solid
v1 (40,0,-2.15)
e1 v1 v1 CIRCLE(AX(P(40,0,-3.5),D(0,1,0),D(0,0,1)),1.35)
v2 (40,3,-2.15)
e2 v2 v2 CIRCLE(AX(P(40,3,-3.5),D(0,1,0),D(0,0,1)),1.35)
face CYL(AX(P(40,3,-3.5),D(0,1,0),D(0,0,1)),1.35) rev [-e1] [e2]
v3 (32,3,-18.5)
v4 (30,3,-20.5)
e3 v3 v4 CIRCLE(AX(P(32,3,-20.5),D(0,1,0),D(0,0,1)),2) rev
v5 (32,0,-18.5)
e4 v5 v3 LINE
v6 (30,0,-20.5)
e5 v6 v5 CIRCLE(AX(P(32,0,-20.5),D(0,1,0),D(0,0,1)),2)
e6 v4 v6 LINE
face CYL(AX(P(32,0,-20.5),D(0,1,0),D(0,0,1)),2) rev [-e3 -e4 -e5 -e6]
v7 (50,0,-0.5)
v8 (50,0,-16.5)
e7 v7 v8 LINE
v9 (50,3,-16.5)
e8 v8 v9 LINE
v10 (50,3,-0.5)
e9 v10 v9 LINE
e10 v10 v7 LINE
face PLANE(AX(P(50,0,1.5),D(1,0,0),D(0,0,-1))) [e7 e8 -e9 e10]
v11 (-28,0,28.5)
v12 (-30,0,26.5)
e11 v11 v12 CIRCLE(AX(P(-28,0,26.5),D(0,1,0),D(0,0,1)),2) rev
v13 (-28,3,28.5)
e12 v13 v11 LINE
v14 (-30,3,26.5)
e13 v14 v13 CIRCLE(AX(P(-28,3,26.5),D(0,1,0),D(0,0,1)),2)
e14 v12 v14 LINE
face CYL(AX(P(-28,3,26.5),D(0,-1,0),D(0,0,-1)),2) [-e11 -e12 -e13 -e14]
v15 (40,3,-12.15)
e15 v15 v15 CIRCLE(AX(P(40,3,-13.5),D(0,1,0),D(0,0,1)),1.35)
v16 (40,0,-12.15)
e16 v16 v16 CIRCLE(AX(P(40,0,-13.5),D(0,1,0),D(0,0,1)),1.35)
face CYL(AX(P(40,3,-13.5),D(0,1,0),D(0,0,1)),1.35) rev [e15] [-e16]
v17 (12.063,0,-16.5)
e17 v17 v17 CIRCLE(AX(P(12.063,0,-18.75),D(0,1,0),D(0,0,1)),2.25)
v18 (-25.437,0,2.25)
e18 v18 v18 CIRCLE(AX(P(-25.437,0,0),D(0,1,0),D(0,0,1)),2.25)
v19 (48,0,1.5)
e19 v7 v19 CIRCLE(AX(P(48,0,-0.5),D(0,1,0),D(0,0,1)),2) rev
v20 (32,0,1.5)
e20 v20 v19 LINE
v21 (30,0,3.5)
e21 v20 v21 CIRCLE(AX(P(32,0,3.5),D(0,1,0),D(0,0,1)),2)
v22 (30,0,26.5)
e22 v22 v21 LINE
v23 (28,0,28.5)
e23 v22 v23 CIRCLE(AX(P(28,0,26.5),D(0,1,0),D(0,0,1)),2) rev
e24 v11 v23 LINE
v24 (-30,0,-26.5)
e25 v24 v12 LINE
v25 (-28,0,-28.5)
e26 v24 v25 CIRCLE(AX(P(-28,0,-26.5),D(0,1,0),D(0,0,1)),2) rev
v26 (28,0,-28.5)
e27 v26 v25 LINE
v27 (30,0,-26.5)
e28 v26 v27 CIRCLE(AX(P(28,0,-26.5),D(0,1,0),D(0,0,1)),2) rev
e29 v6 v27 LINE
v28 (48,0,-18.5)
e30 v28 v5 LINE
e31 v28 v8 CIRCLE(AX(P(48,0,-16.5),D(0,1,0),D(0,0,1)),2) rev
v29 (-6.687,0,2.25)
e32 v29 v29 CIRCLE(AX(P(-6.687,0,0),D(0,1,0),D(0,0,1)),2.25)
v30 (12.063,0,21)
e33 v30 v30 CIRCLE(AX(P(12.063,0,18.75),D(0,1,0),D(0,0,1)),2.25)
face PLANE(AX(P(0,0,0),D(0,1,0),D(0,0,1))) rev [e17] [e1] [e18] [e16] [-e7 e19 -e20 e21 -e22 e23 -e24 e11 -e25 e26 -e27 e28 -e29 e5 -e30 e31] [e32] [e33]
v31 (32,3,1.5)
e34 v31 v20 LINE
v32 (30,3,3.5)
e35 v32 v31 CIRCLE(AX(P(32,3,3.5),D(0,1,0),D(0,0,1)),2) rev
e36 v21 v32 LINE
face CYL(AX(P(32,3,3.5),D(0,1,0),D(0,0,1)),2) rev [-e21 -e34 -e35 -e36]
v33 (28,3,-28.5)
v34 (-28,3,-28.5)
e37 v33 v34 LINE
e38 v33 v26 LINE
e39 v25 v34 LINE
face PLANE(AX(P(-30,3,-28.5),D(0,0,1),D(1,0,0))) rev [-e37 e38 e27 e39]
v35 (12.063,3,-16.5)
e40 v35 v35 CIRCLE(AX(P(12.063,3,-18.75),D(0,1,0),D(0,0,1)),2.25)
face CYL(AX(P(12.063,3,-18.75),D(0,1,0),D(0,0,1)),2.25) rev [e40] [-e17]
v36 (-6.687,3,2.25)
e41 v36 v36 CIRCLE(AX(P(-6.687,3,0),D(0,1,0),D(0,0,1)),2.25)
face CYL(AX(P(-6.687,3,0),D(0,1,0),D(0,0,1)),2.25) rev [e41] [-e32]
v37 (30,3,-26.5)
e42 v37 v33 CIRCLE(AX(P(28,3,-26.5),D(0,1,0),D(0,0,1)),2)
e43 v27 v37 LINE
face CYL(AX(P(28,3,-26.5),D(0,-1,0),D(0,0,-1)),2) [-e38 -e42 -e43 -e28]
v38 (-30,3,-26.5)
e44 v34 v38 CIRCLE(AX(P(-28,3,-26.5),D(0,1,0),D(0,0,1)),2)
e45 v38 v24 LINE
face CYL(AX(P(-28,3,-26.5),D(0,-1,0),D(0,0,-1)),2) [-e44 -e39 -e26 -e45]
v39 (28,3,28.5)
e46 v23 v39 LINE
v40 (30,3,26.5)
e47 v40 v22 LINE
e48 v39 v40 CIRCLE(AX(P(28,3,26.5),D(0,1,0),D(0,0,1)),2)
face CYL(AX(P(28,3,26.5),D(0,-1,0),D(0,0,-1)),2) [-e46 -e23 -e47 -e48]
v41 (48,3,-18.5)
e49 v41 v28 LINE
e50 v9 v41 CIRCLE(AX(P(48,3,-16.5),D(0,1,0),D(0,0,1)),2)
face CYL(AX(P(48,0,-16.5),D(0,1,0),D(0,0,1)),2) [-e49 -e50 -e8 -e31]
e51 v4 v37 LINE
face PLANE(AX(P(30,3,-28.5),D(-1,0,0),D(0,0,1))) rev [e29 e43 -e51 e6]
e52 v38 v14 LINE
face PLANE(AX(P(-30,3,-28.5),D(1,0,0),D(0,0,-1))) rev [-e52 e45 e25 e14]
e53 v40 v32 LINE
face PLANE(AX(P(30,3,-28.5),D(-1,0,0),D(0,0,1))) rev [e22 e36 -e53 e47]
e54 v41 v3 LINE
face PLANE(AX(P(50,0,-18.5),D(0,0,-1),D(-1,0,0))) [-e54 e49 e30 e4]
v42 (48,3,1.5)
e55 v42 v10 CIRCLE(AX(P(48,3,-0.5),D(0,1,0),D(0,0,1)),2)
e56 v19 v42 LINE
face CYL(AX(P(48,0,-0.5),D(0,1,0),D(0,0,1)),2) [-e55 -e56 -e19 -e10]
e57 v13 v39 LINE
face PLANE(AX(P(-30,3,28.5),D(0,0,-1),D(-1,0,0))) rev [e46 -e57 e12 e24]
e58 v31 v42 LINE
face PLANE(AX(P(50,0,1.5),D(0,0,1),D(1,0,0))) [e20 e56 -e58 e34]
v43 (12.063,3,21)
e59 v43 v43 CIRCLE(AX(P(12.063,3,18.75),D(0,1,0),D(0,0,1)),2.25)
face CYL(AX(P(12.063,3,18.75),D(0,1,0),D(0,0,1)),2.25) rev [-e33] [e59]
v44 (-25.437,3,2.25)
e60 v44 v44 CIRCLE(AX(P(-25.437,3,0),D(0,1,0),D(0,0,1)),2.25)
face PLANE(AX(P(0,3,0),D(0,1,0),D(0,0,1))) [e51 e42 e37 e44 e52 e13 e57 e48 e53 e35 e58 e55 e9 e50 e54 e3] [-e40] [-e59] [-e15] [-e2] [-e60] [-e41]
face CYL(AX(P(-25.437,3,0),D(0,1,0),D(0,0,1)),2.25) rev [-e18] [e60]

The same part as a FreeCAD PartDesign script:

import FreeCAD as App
import Part
import Sketcher

V = App.Vector
Q = App.Units.Quantity


def edges_at(feature, points):
    """Names of the edges that pass closest to the given points."""
    edges = feature.Shape.Edges
    near = lambda p: min(range(len(edges)), key=lambda i: edges[i].distToShape(Part.Vertex(*p))[0])
    return sorted({f"Edge{near(p) + 1}" for p in points})


def add_polygon(sketch, points):
    """Adds a closed chain of lines whose ends are joined by coincident constraints."""
    first, n = sketch.GeometryCount, len(points)
    for a, b in zip(points, points[1:] + points[:1]):
        sketch.addGeometry(Part.LineSegment(App.Vector(*a, 0), App.Vector(*b, 0)), False)
    for i in range(n):
        sketch.addConstraint(Sketcher.Constraint("Coincident", first + i, 2, first + (i + 1) % n, 1))

doc = App.newDocument("Part")
params = doc.addObject("Spreadsheet::Sheet", "Params")
for row, (alias, value) in enumerate([
    ("sketch1_width", "60 mm"),
    ("sketch1_height", "57 mm"),
    ("pad1_length", "3 mm"),
    ("sketch2_diameter", "4.5 mm"),
    ("hole_diameter", "4.5 mm"),
    ("hole_depth", "15 mm"),
    ("sketch3_width", "20 mm"),
    ("pad2_length", "3 mm"),
    ("sketch4_diameter", "2.7 mm"),
    ("hole2_diameter", "2.7 mm"),
    ("hole2_depth", "15 mm"),
    ("fillet_radius", "2 mm"),
], start=1):
    params.set(f"A{row}", alias)
    params.set(f"B{row}", "=" + value)
    params.setAlias(f"B{row}", alias)

body = doc.addObject("PartDesign::Body", "Body")

sketch1 = doc.addObject("Sketcher::SketchObject", "Sketch")
body.addObject(sketch1)
sketch1.AttachmentSupport = (doc.XZ_Plane, [""])
sketch1.MapMode = "FlatFace"
add_polygon(sketch1, [(-30, -28), (-30, 28), (30, 28), (30, -28)])
sketch1.addConstraint([
    Sketcher.Constraint("Vertical", 0),
    Sketcher.Constraint("Horizontal", 1),
    Sketcher.Constraint("Vertical", 2),
    Sketcher.Constraint("Horizontal", 3),
    Sketcher.Constraint("Symmetric", 0, 2, 2, 2, -1, 1),
    Sketcher.Constraint("DistanceX", 1, 1, 1, 2, Q("60 mm")),
    Sketcher.Constraint("DistanceY", 0, 1, 0, 2, Q("57 mm")),
])
sketch1.setExpression("Constraints[9]", "Params.sketch1_width")
sketch1.setExpression("Constraints[10]", "Params.sketch1_height")
pad1 = doc.addObject("PartDesign::Pad", "Pad")
body.addObject(pad1)
pad1.Profile = sketch1
pad1.setExpression("Length", "Params.pad1_length")
pad1.Reversed = True

sketch2 = doc.addObject("Sketcher::SketchObject", "Sketch001")
body.addObject(sketch2)
sketch2.AttachmentSupport = (doc.XZ_Plane, [""])
sketch2.MapMode = "FlatFace"
sketch2.AttachmentOffset = App.Placement(V(0, 0, -3), App.Rotation())
sketch2.addGeometry([
    Part.Circle(V(-25.4, 0, 0), V(0, 0, 1), 2.2),
    Part.Circle(V(-6.7, 0, 0), V(0, 0, 1), 2.2),
    Part.Circle(V(12.1, -18.8, 0), V(0, 0, 1), 2.2),
    Part.Circle(V(12.1, 18.8, 0), V(0, 0, 1), 2.2),
], False)
sketch2.addConstraint([
    Sketcher.Constraint("Equal", 0, 1),
    Sketcher.Constraint("Equal", 1, 2),
    Sketcher.Constraint("Equal", 2, 3),
    Sketcher.Constraint("Symmetric", 2, 3, 3, 3, -1),
    Sketcher.Constraint("PointOnObject", 0, 3, -1),
    Sketcher.Constraint("PointOnObject", 1, 3, -1),
    Sketcher.Constraint("Diameter", 0, Q("4.5 mm")),
    Sketcher.Constraint("DistanceX", 0, 3, 2, 3, Q("37.5 mm")),
    Sketcher.Constraint("DistanceY", 2, 3, 3, 3, Q("37.5 mm")),
    Sketcher.Constraint("DistanceX", 0, 3, 1, 3, Q("18.75 mm")),
    Sketcher.Constraint("DistanceX", 0, 3, -1, 1, Q("25.437 mm")),
])
sketch2.setExpression("Constraints[6]", "Params.sketch2_diameter")
doc.recompute()
hole = doc.addObject("PartDesign::Hole", "Hole")
body.addObject(hole)
hole.Profile = sketch2
hole.ThreadType = "None"
hole.setExpression("Diameter", "Params.hole_diameter")
hole.DepthType = "Dimension"
hole.setExpression("Depth", "Params.hole_depth")
hole.DrillPoint = "Angled"
hole.DrillPointAngle = 118
hole.Reversed = True

sketch3 = doc.addObject("Sketcher::SketchObject", "Sketch002")
body.addObject(sketch3)
sketch3.AttachmentSupport = (doc.XZ_Plane, [""])
sketch3.MapMode = "FlatFace"
sketch3.AttachmentOffset = App.Placement(V(0, 0, -3), App.Rotation())
add_polygon(sketch3, [(30, -18), (30, 2), (50, 2), (50, -18)])
sketch3.addConstraint([
    Sketcher.Constraint("Vertical", 0),
    Sketcher.Constraint("Horizontal", 1),
    Sketcher.Constraint("Vertical", 2),
    Sketcher.Constraint("Horizontal", 3),
    Sketcher.Constraint("Equal", 3, 0),
    Sketcher.Constraint("DistanceX", 1, 1, 1, 2, Q("20 mm")),
    Sketcher.Constraint("DistanceX", -1, 1, 0, 2, Q("30 mm")),
    Sketcher.Constraint("DistanceY", -1, 1, 0, 2, Q("1.5 mm")),
])
sketch3.setExpression("Constraints[9]", "Params.sketch3_width")
pad2 = doc.addObject("PartDesign::Pad", "Pad001")
body.addObject(pad2)
pad2.Profile = sketch3
pad2.setExpression("Length", "Params.pad2_length")

sketch4 = doc.addObject("Sketcher::SketchObject", "Sketch003")
body.addObject(sketch4)
sketch4.AttachmentSupport = (doc.XZ_Plane, [""])
sketch4.MapMode = "FlatFace"
sketch4.AttachmentOffset = App.Placement(V(0, 0, -3), App.Rotation())
sketch4.addGeometry([
    Part.Circle(V(40, -13.5, 0), V(0, 0, 1), 1.4),
    Part.Circle(V(40, -3.5, 0), V(0, 0, 1), 1.4),
], False)
sketch4.addConstraint([
    Sketcher.Constraint("Equal", 0, 1),
    Sketcher.Constraint("Vertical", 0, 3, 1, 3),
    Sketcher.Constraint("Diameter", 0, Q("2.7 mm")),
    Sketcher.Constraint("DistanceX", -1, 1, 0, 3, Q("40 mm")),
    Sketcher.Constraint("DistanceY", 0, 3, 1, 3, Q("10 mm")),
    Sketcher.Constraint("DistanceY", 0, 3, -1, 1, Q("13.5 mm")),
])
sketch4.setExpression("Constraints[2]", "Params.sketch4_diameter")
doc.recompute()
hole2 = doc.addObject("PartDesign::Hole", "Hole001")
body.addObject(hole2)
hole2.Profile = sketch4
hole2.ThreadType = "None"
hole2.setExpression("Diameter", "Params.hole2_diameter")
hole2.DepthType = "Dimension"
hole2.setExpression("Depth", "Params.hole2_depth")
hole2.DrillPoint = "Angled"
hole2.DrillPointAngle = 118
hole2.Reversed = True
doc.recompute()

fillet = doc.addObject("PartDesign::Fillet", "Fillet")
body.addObject(fillet)
fillet.Base = (hole2, edges_at(hole2, [
    (30, 1.5, 1.5),
    (30, 1.5, -18.5),
    (50, 1.5, -18.5),
    (50, 1.5, 1.5),
    (30, 1.5, 28.5),
    (-30, 1.5, 28.5),
    (-30, 1.5, -28.5),
    (30, 1.5, -28.5),
]))
fillet.setExpression("Radius", "Params.fillet_radius")

doc.recompute()
